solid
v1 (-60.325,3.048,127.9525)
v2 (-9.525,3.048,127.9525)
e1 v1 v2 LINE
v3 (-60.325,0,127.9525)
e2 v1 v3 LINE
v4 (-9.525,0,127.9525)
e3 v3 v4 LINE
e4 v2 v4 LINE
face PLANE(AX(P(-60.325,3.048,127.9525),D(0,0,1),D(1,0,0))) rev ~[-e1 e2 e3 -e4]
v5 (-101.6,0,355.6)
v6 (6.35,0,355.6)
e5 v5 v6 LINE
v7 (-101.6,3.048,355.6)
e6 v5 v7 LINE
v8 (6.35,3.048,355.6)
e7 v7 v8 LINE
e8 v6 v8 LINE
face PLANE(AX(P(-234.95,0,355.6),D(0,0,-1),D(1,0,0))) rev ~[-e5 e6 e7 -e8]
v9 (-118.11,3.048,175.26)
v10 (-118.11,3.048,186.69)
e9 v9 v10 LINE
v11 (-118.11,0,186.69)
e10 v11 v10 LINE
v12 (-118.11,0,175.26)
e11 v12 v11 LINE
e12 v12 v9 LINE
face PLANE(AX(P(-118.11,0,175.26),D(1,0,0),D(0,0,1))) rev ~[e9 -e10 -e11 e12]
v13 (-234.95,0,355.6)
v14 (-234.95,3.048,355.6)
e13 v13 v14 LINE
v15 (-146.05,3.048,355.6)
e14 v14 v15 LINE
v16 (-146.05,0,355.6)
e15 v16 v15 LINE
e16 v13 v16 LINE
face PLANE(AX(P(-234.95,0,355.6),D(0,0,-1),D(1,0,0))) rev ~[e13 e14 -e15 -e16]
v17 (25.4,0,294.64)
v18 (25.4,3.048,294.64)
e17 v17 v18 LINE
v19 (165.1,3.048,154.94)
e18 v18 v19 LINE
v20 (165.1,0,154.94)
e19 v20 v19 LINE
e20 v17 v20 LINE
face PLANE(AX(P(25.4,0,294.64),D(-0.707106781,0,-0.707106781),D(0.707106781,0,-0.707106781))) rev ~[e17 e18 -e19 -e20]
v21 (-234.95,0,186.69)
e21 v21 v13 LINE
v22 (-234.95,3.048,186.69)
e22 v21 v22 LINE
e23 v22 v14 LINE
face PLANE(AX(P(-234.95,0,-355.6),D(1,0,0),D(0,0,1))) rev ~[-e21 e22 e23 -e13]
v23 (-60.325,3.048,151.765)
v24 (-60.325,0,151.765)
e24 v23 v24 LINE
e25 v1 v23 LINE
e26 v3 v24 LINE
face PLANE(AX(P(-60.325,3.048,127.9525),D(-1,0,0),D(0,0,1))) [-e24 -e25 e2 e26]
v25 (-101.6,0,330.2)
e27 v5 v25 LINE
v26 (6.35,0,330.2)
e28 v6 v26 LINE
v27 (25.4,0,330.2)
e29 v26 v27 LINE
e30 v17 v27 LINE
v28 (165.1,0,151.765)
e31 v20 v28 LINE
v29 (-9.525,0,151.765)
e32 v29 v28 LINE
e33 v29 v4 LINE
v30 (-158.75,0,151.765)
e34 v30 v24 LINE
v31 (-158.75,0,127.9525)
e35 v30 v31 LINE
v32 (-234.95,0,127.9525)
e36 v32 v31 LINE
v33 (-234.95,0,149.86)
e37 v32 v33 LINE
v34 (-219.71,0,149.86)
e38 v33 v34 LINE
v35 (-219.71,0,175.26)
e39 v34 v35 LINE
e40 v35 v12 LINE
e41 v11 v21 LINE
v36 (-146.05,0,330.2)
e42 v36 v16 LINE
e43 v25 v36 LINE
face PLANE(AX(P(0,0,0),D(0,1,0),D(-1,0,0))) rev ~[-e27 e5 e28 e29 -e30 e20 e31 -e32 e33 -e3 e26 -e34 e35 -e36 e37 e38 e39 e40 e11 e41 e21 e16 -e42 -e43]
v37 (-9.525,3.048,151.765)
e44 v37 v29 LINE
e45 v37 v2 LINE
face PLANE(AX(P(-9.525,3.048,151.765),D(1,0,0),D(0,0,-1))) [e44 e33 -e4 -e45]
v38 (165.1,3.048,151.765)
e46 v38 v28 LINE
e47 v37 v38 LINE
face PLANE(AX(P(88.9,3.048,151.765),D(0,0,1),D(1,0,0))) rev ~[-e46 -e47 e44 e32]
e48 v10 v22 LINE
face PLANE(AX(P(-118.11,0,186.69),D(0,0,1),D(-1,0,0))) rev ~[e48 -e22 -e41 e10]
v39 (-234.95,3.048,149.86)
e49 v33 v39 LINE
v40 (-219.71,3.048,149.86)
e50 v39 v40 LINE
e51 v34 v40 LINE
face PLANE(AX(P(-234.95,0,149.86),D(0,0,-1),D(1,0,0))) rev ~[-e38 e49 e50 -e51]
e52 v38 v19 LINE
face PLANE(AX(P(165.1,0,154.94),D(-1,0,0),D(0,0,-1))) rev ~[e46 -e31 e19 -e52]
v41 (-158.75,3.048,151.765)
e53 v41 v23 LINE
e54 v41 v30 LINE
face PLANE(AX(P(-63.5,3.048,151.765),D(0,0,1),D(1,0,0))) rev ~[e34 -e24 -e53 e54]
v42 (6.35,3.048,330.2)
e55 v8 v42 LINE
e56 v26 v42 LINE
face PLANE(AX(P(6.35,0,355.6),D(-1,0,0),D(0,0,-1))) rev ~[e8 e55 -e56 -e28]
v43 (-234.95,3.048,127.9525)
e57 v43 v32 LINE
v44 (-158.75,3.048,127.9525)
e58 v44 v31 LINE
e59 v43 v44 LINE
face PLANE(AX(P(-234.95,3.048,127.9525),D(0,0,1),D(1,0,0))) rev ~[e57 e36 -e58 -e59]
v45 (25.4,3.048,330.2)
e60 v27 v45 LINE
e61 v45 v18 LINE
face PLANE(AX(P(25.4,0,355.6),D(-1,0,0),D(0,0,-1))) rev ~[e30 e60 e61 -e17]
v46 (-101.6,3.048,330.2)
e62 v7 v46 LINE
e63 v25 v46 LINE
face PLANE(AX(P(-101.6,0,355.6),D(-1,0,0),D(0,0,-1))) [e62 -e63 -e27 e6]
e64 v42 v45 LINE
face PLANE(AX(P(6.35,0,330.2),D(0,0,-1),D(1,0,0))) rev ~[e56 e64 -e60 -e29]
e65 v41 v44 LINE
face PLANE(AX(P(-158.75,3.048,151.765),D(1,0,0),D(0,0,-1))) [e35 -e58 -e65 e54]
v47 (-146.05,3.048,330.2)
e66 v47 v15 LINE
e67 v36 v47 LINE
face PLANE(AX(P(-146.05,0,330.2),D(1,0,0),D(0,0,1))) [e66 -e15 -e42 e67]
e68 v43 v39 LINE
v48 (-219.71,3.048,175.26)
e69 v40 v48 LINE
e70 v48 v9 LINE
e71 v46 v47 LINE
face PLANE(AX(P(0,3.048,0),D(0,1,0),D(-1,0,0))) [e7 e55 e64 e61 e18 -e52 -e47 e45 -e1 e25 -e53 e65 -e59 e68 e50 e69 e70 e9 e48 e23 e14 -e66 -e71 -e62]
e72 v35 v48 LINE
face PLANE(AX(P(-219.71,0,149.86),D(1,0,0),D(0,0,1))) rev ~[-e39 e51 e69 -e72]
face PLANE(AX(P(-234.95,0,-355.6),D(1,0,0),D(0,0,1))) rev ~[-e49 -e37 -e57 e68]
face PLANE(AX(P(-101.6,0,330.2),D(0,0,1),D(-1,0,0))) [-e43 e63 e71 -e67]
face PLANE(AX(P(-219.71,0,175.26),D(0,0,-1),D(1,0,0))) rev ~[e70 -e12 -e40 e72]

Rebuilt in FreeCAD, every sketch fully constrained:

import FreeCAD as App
import Part
import Sketcher
from FreeCAD import Vector
Q = App.Units.Quantity

doc = App.newDocument("Part")
body = doc.addObject("PartDesign::Body", "Body")

sketch1 = body.newObject("Sketcher::SketchObject", "Sketch")
sketch1.AttachmentSupport = (doc.getObject("XZ_Plane"), [""])
sketch1.MapMode = "FlatFace"
sketch1.addGeometry([
    Part.LineSegment(Vector(-235, -356, 0), Vector(-235, 356, 0)),
    Part.LineSegment(Vector(-235, 356, 0), Vector(235, 356, 0)),
    Part.LineSegment(Vector(235, 356, 0), Vector(235, -356, 0)),
    Part.LineSegment(Vector(235, -356, 0), Vector(-235, -356, 0)),
], False)
sketch1.addConstraint([
    Sketcher.Constraint("Coincident", 0, 2, 1, 1),
    Sketcher.Constraint("Coincident", 1, 2, 2, 1),
    Sketcher.Constraint("Coincident", 2, 2, 3, 1),
    Sketcher.Constraint("Coincident", 3, 2, 0, 1),
    Sketcher.Constraint("Vertical", 0),
    Sketcher.Constraint("Horizontal", 1),
    Sketcher.Constraint("Vertical", 2),
    Sketcher.Constraint("Horizontal", 3),
    Sketcher.Constraint("Symmetric", 0, 2, 2, 2, -1, 1),
    Sketcher.Constraint("DistanceY", 0, 1, 0, 2, Q("28 in")),
    Sketcher.Constraint("DistanceX", 1, 1, 1, 2, Q("18.5 in")),
])
pad1 = body.newObject("PartDesign::Pad", "Pad")
pad1.Profile = sketch1
pad1.Length = Q("0.12 in")
pad1.Reversed = True

sketch2 = body.newObject("Sketcher::SketchObject", "Sketch001")
sketch2.AttachmentSupport = (doc.getObject("XZ_Plane"), [""])
sketch2.MapMode = "FlatFace"
sketch2.addGeometry([
    Part.LineSegment(Vector(-118, 187, 0), Vector(-235, 187, 0)),
    Part.LineSegment(Vector(-235, 187, 0), Vector(-235, 150, 0)),
    Part.LineSegment(Vector(-235, 150, 0), Vector(-220, 150, 0)),
    Part.LineSegment(Vector(-220, 150, 0), Vector(-220, 175, 0)),
    Part.LineSegment(Vector(-220, 175, 0), Vector(-118, 175, 0)),
    Part.LineSegment(Vector(-118, 175, 0), Vector(-118, 187, 0)),
    Part.LineSegment(Vector(235, 356, 0), Vector(25, 356, 0)),
    Part.LineSegment(Vector(25, 356, 0), Vector(25, 295, 0)),
    Part.LineSegment(Vector(25, 295, 0), Vector(165, 155, 0)),
    Part.LineSegment(Vector(165, 155, 0), Vector(165, 89, 0)),
    Part.LineSegment(Vector(165, 89, 0), Vector(20, 89, 0)),
    Part.LineSegment(Vector(20, 89, 0), Vector(20, -130, 0)),
    Part.LineSegment(Vector(20, -130, 0), Vector(165, -130, 0)),
    Part.LineSegment(Vector(165, -130, 0), Vector(165, -155, 0)),
    Part.LineSegment(Vector(165, -155, 0), Vector(25, -295, 0)),
    Part.LineSegment(Vector(25, -295, 0), Vector(25, -356, 0)),
    Part.LineSegment(Vector(25, -356, 0), Vector(235, -356, 0)),
    Part.LineSegment(Vector(235, -356, 0), Vector(235, 356, 0)),
    Part.LineSegment(Vector(-159, 36, 0), Vector(-235, 36, 0)),
    Part.LineSegment(Vector(-235, 36, 0), Vector(-235, -43, 0)),
    Part.LineSegment(Vector(-235, -43, 0), Vector(-159, -43, 0)),
    Part.LineSegment(Vector(-159, -43, 0), Vector(-159, 36, 0)),
    Part.LineSegment(Vector(-220, -150, 0), Vector(-235, -150, 0)),
    Part.LineSegment(Vector(-235, -150, 0), Vector(-235, -187, 0)),
    Part.LineSegment(Vector(-235, -187, 0), Vector(-118, -187, 0)),
    Part.LineSegment(Vector(-118, -187, 0), Vector(-118, -175, 0)),
    Part.LineSegment(Vector(-118, -175, 0), Vector(-220, -175, 0)),
    Part.LineSegment(Vector(-220, -175, 0), Vector(-220, -150, 0)),
], False)
sketch2.addConstraint([
    Sketcher.Constraint("Coincident", 0, 2, 1, 1),
    Sketcher.Constraint("Coincident", 1, 2, 2, 1),
    Sketcher.Constraint("Coincident", 2, 2, 3, 1),
    Sketcher.Constraint("Coincident", 3, 2, 4, 1),
    Sketcher.Constraint("Coincident", 4, 2, 5, 1),
    Sketcher.Constraint("Coincident", 5, 2, 0, 1),
    Sketcher.Constraint("Coincident", 6, 2, 7, 1),
    Sketcher.Constraint("Coincident", 7, 2, 8, 1),
    Sketcher.Constraint("Coincident", 8, 2, 9, 1),
    Sketcher.Constraint("Coincident", 9, 2, 10, 1),
    Sketcher.Constraint("Coincident", 10, 2, 11, 1),
    Sketcher.Constraint("Coincident", 11, 2, 12, 1),
    Sketcher.Constraint("Coincident", 12, 2, 13, 1),
    Sketcher.Constraint("Coincident", 13, 2, 14, 1),
    Sketcher.Constraint("Coincident", 14, 2, 15, 1),
    Sketcher.Constraint("Coincident", 15, 2, 16, 1),
    Sketcher.Constraint("Coincident", 16, 2, 17, 1),
    Sketcher.Constraint("Coincident", 17, 2, 6, 1),
    Sketcher.Constraint("Coincident", 18, 2, 19, 1),
    Sketcher.Constraint("Coincident", 19, 2, 20, 1),
    Sketcher.Constraint("Coincident", 20, 2, 21, 1),
    Sketcher.Constraint("Coincident", 21, 2, 18, 1),
    Sketcher.Constraint("Coincident", 22, 2, 23, 1),
    Sketcher.Constraint("Coincident", 23, 2, 24, 1),
    Sketcher.Constraint("Coincident", 24, 2, 25, 1),
    Sketcher.Constraint("Coincident", 25, 2, 26, 1),
    Sketcher.Constraint("Coincident", 26, 2, 27, 1),
    Sketcher.Constraint("Coincident", 27, 2, 22, 1),
    Sketcher.Constraint("Horizontal", 0),
    Sketcher.Constraint("Vertical", 1),
    Sketcher.Constraint("Horizontal", 2),
    Sketcher.Constraint("Vertical", 3),
    Sketcher.Constraint("Horizontal", 4),
    Sketcher.Constraint("Vertical", 5),
    Sketcher.Constraint("Horizontal", 6),
    Sketcher.Constraint("Vertical", 7),
    Sketcher.Constraint("Vertical", 9),
    Sketcher.Constraint("Horizontal", 10),
    Sketcher.Constraint("Vertical", 11),
    Sketcher.Constraint("Horizontal", 12),
    Sketcher.Constraint("Vertical", 13),
    Sketcher.Constraint("Vertical", 15),
    Sketcher.Constraint("Horizontal", 16),
    Sketcher.Constraint("Vertical", 17),
    Sketcher.Constraint("Horizontal", 18),
    Sketcher.Constraint("Vertical", 19),
    Sketcher.Constraint("Horizontal", 20),
    Sketcher.Constraint("Vertical", 21),
    Sketcher.Constraint("Horizontal", 22),
    Sketcher.Constraint("Vertical", 23),
    Sketcher.Constraint("Horizontal", 24),
    Sketcher.Constraint("Vertical", 25),
    Sketcher.Constraint("Horizontal", 26),
    Sketcher.Constraint("Vertical", 27),
    Sketcher.Constraint("Symmetric", 8, 2, 13, 2, -1),
    Sketcher.Constraint("Symmetric", 7, 2, 14, 2, -1),
    Sketcher.Constraint("Symmetric", 1, 2, 22, 2, -1),
    Sketcher.Constraint("Symmetric", 5, 2, 24, 2, -1),
    Sketcher.Constraint("Symmetric", 3, 2, 26, 2, -1),
    Sketcher.Constraint("Perpendicular", 8, 14),
    Sketcher.Constraint("Vertical", 1, 2, 18, 2),
    Sketcher.Constraint("Equal", 3, 13),
    Sketcher.Constraint("Equal", 7, 15),
    Sketcher.Constraint("DistanceX", 4, 1, 4, 2, Q("4 in")),
    Sketcher.Constraint("DistanceX", 18, 2, 18, 1, Q("3 in")),
    Sketcher.Constraint("DistanceY", 3, 1, 3, 2, Q("1 in")),
    Sketcher.Constraint("DistanceX", 10, 2, 10, 1, Q("5.7 in")),
    Sketcher.Constraint("DistanceY", 7, 2, 7, 1, Q("2.4 in")),
    Sketcher.Constraint("DistanceX", -1, 1, 6, 2, Q("1 in")),
    Sketcher.Constraint("DistanceX", 6, 2, 6, 1, Q("8.25 in")),
    Sketcher.Constraint("DistanceY", -1, 1, 18, 2, Q("1.4 in")),
    Sketcher.Constraint("DistanceY", 19, 2, -1, 1, Q("1.7 in")),
    Sketcher.Constraint("DistanceY", 18, 2, 1, 2, Q("4.5 in")),
    Sketcher.Constraint("DistanceX", 2, 2, 20, 2, Q("2.4 in")),
    Sketcher.Constraint("DistanceY", 17, 1, 17, 2, Q("28 in")),
    Sketcher.Constraint("DistanceX", 13, 2, 16, 2, Q("2.75 in")),
    Sketcher.Constraint("DistanceY", 9, 2, 9, 1, Q("2.6 in")),
    Sketcher.Constraint("DistanceY", 1, 2, 1, 1, Q("1.45 in")),
    Sketcher.Constraint("DistanceX", 0, 2, -1, 1, Q("9.25 in")),
])
pocket1 = body.newObject("PartDesign::Pocket", "Pocket")
pocket1.Profile = sketch2
pocket1.Length = Q("0.12 in")

sketch3 = body.newObject("Sketcher::SketchObject", "Sketch002")
sketch3.AttachmentSupport = (doc.getObject("XZ_Plane"), [""])
sketch3.MapMode = "FlatFace"
sketch3.addGeometry([
    Part.LineSegment(Vector(25, 330, 0), Vector(25, 356, 0)),
    Part.LineSegment(Vector(25, 356, 0), Vector(6, 356, 0)),
    Part.LineSegment(Vector(6, 356, 0), Vector(6, 330, 0)),
    Part.LineSegment(Vector(6, 330, 0), Vector(25, 330, 0)),
    Part.LineSegment(Vector(-102, 330, 0), Vector(-102, 356, 0)),
    Part.LineSegment(Vector(-102, 356, 0), Vector(-146, 356, 0)),
    Part.LineSegment(Vector(-146, 356, 0), Vector(-146, 330, 0)),
    Part.LineSegment(Vector(-146, 330, 0), Vector(-102, 330, 0)),
    Part.LineSegment(Vector(25, -356, 0), Vector(25, -330, 0)),
    Part.LineSegment(Vector(25, -330, 0), Vector(6, -330, 0)),
    Part.LineSegment(Vector(6, -330, 0), Vector(6, -356, 0)),
    Part.LineSegment(Vector(6, -356, 0), Vector(25, -356, 0)),
    Part.LineSegment(Vector(-146, -356, 0), Vector(-102, -356, 0)),
    Part.LineSegment(Vector(-102, -356, 0), Vector(-102, -330, 0)),
    Part.LineSegment(Vector(-102, -330, 0), Vector(-146, -330, 0)),
    Part.LineSegment(Vector(-146, -330, 0), Vector(-146, -356, 0)),
], False)
sketch3.addConstraint([
    Sketcher.Constraint("Coincident", 0, 2, 1, 1),
    Sketcher.Constraint("Coincident", 1, 2, 2, 1),
    Sketcher.Constraint("Coincident", 2, 2, 3, 1),
    Sketcher.Constraint("Coincident", 3, 2, 0, 1),
    Sketcher.Constraint("Coincident", 4, 2, 5, 1),
    Sketcher.Constraint("Coincident", 5, 2, 6, 1),
    Sketcher.Constraint("Coincident", 6, 2, 7, 1),
    Sketcher.Constraint("Coincident", 7, 2, 4, 1),
    Sketcher.Constraint("Coincident", 8, 2, 9, 1),
    Sketcher.Constraint("Coincident", 9, 2, 10, 1),
    Sketcher.Constraint("Coincident", 10, 2, 11, 1),
    Sketcher.Constraint("Coincident", 11, 2, 8, 1),
    Sketcher.Constraint("Coincident", 12, 2, 13, 1),
    Sketcher.Constraint("Coincident", 13, 2, 14, 1),
    Sketcher.Constraint("Coincident", 14, 2, 15, 1),
    Sketcher.Constraint("Coincident", 15, 2, 12, 1),
    Sketcher.Constraint("Vertical", 0),
    Sketcher.Constraint("Horizontal", 1),
    Sketcher.Constraint("Vertical", 2),
    Sketcher.Constraint("Horizontal", 3),
    Sketcher.Constraint("Vertical", 4),
    Sketcher.Constraint("Horizontal", 5),
    Sketcher.Constraint("Vertical", 6),
    Sketcher.Constraint("Horizontal", 7),
    Sketcher.Constraint("Vertical", 8),
    Sketcher.Constraint("Horizontal", 9),
    Sketcher.Constraint("Vertical", 10),
    Sketcher.Constraint("Horizontal", 11),
    Sketcher.Constraint("Horizontal", 12),
    Sketcher.Constraint("Vertical", 13),
    Sketcher.Constraint("Horizontal", 14),
    Sketcher.Constraint("Vertical", 15),
    Sketcher.Constraint("Symmetric", 3, 2, 8, 2, -1),
    Sketcher.Constraint("Symmetric", 1, 2, 10, 2, -1),
    Sketcher.Constraint("Symmetric", 4, 2, 12, 2, -1),
    Sketcher.Constraint("Symmetric", 6, 2, 14, 2, -1),
    Sketcher.Constraint("Horizontal", 1, 2, 4, 2),
    Sketcher.Constraint("Horizontal", 3, 2, 6, 2),
    Sketcher.Constraint("DistanceY", 0, 1, 0, 2, Q("1 in")),
    Sketcher.Constraint("DistanceX", -1, 1, 0, 2, Q("1 in")),
    Sketcher.Constraint("DistanceX", 1, 2, 1, 1, Q("0.75 in")),
    Sketcher.Constraint("DistanceX", 5, 2, 5, 1, Q("1.75 in")),
    Sketcher.Constraint("DistanceY", -1, 1, 0, 2, Q("14 in")),
    Sketcher.Constraint("DistanceX", 4, 2, -1, 1, Q("4 in")),
])
pocket2 = body.newObject("PartDesign::Pocket", "Pocket001")
pocket2.Profile = sketch3
pocket2.Length = Q("0.12 in")

sketch4 = body.newObject("Sketcher::SketchObject", "Sketch003")
sketch4.AttachmentSupport = (doc.getObject("XZ_Plane"), [""])
sketch4.MapMode = "FlatFace"
sketch4.AttachmentOffset = App.Placement(Vector(0, 0, -0.12 * 25.4), App.Rotation())
sketch4.addGeometry([
    Part.LineSegment(Vector(165, 89, 0), Vector(20, 89, 0)),
    Part.LineSegment(Vector(20, 89, 0), Vector(20, -130, 0)),
    Part.LineSegment(Vector(20, -130, 0), Vector(165, -130, 0)),
    Part.LineSegment(Vector(165, -130, 0), Vector(165, -155, 0)),
    Part.LineSegment(Vector(165, -155, 0), Vector(25, -295, 0)),
    Part.LineSegment(Vector(25, -295, 0), Vector(25, -330, 0)),
    Part.LineSegment(Vector(25, -330, 0), Vector(6, -330, 0)),
    Part.LineSegment(Vector(6, -330, 0), Vector(6, -356, 0)),
    Part.LineSegment(Vector(6, -356, 0), Vector(-102, -356, 0)),
    Part.LineSegment(Vector(-102, -356, 0), Vector(-102, -330, 0)),
    Part.LineSegment(Vector(-102, -330, 0), Vector(-146, -330, 0)),
    Part.LineSegment(Vector(-146, -330, 0), Vector(-146, -356, 0)),
    Part.LineSegment(Vector(-146, -356, 0), Vector(-235, -356, 0)),
    Part.LineSegment(Vector(-235, -356, 0), Vector(-235, -187, 0)),
    Part.LineSegment(Vector(-235, -187, 0), Vector(-118, -187, 0)),
    Part.LineSegment(Vector(-118, -187, 0), Vector(-118, -175, 0)),
    Part.LineSegment(Vector(-118, -175, 0), Vector(-220, -175, 0)),
    Part.LineSegment(Vector(-220, -175, 0), Vector(-220, -150, 0)),
    Part.LineSegment(Vector(-220, -150, 0), Vector(-235, -150, 0)),
    Part.LineSegment(Vector(-235, -150, 0), Vector(-235, -43, 0)),
    Part.LineSegment(Vector(-235, -43, 0), Vector(-159, -43, 0)),
    Part.LineSegment(Vector(-159, -43, 0), Vector(-159, 36, 0)),
    Part.LineSegment(Vector(-159, 36, 0), Vector(-235, 36, 0)),
    Part.LineSegment(Vector(-235, 36, 0), Vector(-235, 128, 0)),
    Part.LineSegment(Vector(-235, 128, 0), Vector(-159, 128, 0)),
    Part.LineSegment(Vector(-159, 128, 0), Vector(-159, 152, 0)),
    Part.LineSegment(Vector(-159, 152, 0), Vector(-60, 152, 0)),
    Part.LineSegment(Vector(-60, 152, 0), Vector(-60, 128, 0)),
    Part.LineSegment(Vector(-60, 128, 0), Vector(-10, 128, 0)),
    Part.LineSegment(Vector(-10, 128, 0), Vector(-10, 152, 0)),
    Part.LineSegment(Vector(-10, 152, 0), Vector(165, 152, 0)),
    Part.LineSegment(Vector(165, 152, 0), Vector(165, 89, 0)),
], False)
sketch4.addConstraint([
    Sketcher.Constraint("Coincident", 0, 2, 1, 1),
    Sketcher.Constraint("Coincident", 1, 2, 2, 1),
    Sketcher.Constraint("Coincident", 2, 2, 3, 1),
    Sketcher.Constraint("Coincident", 3, 2, 4, 1),
    Sketcher.Constraint("Coincident", 4, 2, 5, 1),
    Sketcher.Constraint("Coincident", 5, 2, 6, 1),
    Sketcher.Constraint("Coincident", 6, 2, 7, 1),
    Sketcher.Constraint("Coincident", 7, 2, 8, 1),
    Sketcher.Constraint("Coincident", 8, 2, 9, 1),
    Sketcher.Constraint("Coincident", 9, 2, 10, 1),
    Sketcher.Constraint("Coincident", 10, 2, 11, 1),
    Sketcher.Constraint("Coincident", 11, 2, 12, 1),
    Sketcher.Constraint("Coincident", 12, 2, 13, 1),
    Sketcher.Constraint("Coincident", 13, 2, 14, 1),
    Sketcher.Constraint("Coincident", 14, 2, 15, 1),
    Sketcher.Constraint("Coincident", 15, 2, 16, 1),
    Sketcher.Constraint("Coincident", 16, 2, 17, 1),
    Sketcher.Constraint("Coincident", 17, 2, 18, 1),
    Sketcher.Constraint("Coincident", 18, 2, 19, 1),
    Sketcher.Constraint("Coincident", 19, 2, 20, 1),
    Sketcher.Constraint("Coincident", 20, 2, 21, 1),
    Sketcher.Constraint("Coincident", 21, 2, 22, 1),
    Sketcher.Constraint("Coincident", 22, 2, 23, 1),
    Sketcher.Constraint("Coincident", 23, 2, 24, 1),
    Sketcher.Constraint("Coincident", 24, 2, 25, 1),
    Sketcher.Constraint("Coincident", 25, 2, 26, 1),
    Sketcher.Constraint("Coincident", 26, 2, 27, 1),
    Sketcher.Constraint("Coincident", 27, 2, 28, 1),
    Sketcher.Constraint("Coincident", 28, 2, 29, 1),
    Sketcher.Constraint("Coincident", 29, 2, 30, 1),
    Sketcher.Constraint("Coincident", 30, 2, 31, 1),
    Sketcher.Constraint("Coincident", 31, 2, 0, 1),
    Sketcher.Constraint("Horizontal", 0),
    Sketcher.Constraint("Vertical", 1),
    Sketcher.Constraint("Horizontal", 2),
    Sketcher.Constraint("Vertical", 3),
    Sketcher.Constraint("Vertical", 5),
    Sketcher.Constraint("Horizontal", 6),
    Sketcher.Constraint("Vertical", 7),
    Sketcher.Constraint("Horizontal", 8),
    Sketcher.Constraint("Vertical", 9),
    Sketcher.Constraint("Horizontal", 10),
    Sketcher.Constraint("Vertical", 11),
    Sketcher.Constraint("Horizontal", 12),
    Sketcher.Constraint("Vertical", 13),
    Sketcher.Constraint("Horizontal", 14),
    Sketcher.Constraint("Vertical", 15),
    Sketcher.Constraint("Horizontal", 16),
    Sketcher.Constraint("Vertical", 17),
    Sketcher.Constraint("Horizontal", 18),
    Sketcher.Constraint("Vertical", 19),
    Sketcher.Constraint("Horizontal", 20),
    Sketcher.Constraint("Vertical", 21),
    Sketcher.Constraint("Horizontal", 22),
    Sketcher.Constraint("Vertical", 23),
    Sketcher.Constraint("Horizontal", 24),
    Sketcher.Constraint("Vertical", 25),
    Sketcher.Constraint("Horizontal", 26),
    Sketcher.Constraint("Vertical", 27),
    Sketcher.Constraint("Horizontal", 28),
    Sketcher.Constraint("Vertical", 29),
    Sketcher.Constraint("Horizontal", 30),
    Sketcher.Constraint("Vertical", 31),
    Sketcher.Constraint("Horizontal", 6, 2, 9, 2),
    Sketcher.Constraint("Horizontal", 8, 2, 11, 2),
    Sketcher.Constraint("Horizontal", 24, 2, 27, 2),
    Sketcher.Constraint("Horizontal", 26, 2, 29, 2),
    Sketcher.Constraint("Vertical", 13, 2, 18, 2),
    Sketcher.Constraint("Vertical", 19, 2, 22, 2),
    Sketcher.Constraint("Vertical", 21, 2, 24, 2),
    Sketcher.Constraint("Vertical", 3, 2, 30, 2),
    Sketcher.Constraint("Equal", 3, 7),
    Sketcher.Constraint("Equal", 11, 17),
    Sketcher.Constraint("DistanceX", 20, 1, 20, 2, Q("3 in")),
    Sketcher.Constraint("DistanceX", 28, 1, 28, 2, Q("2 in")),
    Sketcher.Constraint("DistanceY", 3, 2, 3, 1, Q("1 in")),
    Sketcher.Constraint("DistanceX", -1, 1, 4, 2, Q("1 in")),
    Sketcher.Constraint("DistanceX", 16, 2, 16, 1, Q("4 in")),
    Sketcher.Constraint("DistanceX", 0, 2, 0, 1, Q("5.7 in")),
    Sketcher.Constraint("DistanceX", 12, 2, 12, 1, Q("3.5 in")),
    Sketcher.Constraint("DistanceX", 14, 1, 14, 2, Q("4.6 in")),
    Sketcher.Constraint("DistanceY", 1, 2, 1, 1, Q("8.6 in")),
    Sketcher.Constraint("DistanceY", 5, 2, 5, 1, Q("1.4 in")),
    Sketcher.Constraint("DistanceY", 19, 1, 19, 2, Q("4.2 in")),
    Sketcher.Constraint("DistanceY", 21, 1, 21, 2, Q("3.1 in")),
    Sketcher.Constraint("DistanceY", 5, 2, -1, 1, Q("13 in")),
    Sketcher.Constraint("DistanceX", 8, 2, -1, 1, Q("4 in")),
    Sketcher.Constraint("Angle", 4, Q("-135 deg")),
    Sketcher.Constraint("DistanceX", 10, 2, 6, 2, Q("6 in")),
    Sketcher.Constraint("DistanceX", 6, 2, 6, 1, Q("0.75 in")),
    Sketcher.Constraint("DistanceY", 13, 1, 13, 2, Q("6.65 in")),
    Sketcher.Constraint("DistanceY", 15, 1, 15, 2, Q("0.45 in")),
    Sketcher.Constraint("DistanceX", -1, 1, 0, 2, Q("0.8 in")),
    Sketcher.Constraint("DistanceX", 26, 1, 26, 2, Q("3.875 in")),
    Sketcher.Constraint("DistanceY", 25, 1, 25, 2, Q("0.9375 in")),
    Sketcher.Constraint("DistanceY", 31, 2, 31, 1, Q("2.475 in")),
])
pocket3 = body.newObject("PartDesign::Pocket", "Pocket002")
pocket3.Profile = sketch4
pocket3.Type = "ThroughAll"
pocket3.Reversed = True

doc.recompute()
